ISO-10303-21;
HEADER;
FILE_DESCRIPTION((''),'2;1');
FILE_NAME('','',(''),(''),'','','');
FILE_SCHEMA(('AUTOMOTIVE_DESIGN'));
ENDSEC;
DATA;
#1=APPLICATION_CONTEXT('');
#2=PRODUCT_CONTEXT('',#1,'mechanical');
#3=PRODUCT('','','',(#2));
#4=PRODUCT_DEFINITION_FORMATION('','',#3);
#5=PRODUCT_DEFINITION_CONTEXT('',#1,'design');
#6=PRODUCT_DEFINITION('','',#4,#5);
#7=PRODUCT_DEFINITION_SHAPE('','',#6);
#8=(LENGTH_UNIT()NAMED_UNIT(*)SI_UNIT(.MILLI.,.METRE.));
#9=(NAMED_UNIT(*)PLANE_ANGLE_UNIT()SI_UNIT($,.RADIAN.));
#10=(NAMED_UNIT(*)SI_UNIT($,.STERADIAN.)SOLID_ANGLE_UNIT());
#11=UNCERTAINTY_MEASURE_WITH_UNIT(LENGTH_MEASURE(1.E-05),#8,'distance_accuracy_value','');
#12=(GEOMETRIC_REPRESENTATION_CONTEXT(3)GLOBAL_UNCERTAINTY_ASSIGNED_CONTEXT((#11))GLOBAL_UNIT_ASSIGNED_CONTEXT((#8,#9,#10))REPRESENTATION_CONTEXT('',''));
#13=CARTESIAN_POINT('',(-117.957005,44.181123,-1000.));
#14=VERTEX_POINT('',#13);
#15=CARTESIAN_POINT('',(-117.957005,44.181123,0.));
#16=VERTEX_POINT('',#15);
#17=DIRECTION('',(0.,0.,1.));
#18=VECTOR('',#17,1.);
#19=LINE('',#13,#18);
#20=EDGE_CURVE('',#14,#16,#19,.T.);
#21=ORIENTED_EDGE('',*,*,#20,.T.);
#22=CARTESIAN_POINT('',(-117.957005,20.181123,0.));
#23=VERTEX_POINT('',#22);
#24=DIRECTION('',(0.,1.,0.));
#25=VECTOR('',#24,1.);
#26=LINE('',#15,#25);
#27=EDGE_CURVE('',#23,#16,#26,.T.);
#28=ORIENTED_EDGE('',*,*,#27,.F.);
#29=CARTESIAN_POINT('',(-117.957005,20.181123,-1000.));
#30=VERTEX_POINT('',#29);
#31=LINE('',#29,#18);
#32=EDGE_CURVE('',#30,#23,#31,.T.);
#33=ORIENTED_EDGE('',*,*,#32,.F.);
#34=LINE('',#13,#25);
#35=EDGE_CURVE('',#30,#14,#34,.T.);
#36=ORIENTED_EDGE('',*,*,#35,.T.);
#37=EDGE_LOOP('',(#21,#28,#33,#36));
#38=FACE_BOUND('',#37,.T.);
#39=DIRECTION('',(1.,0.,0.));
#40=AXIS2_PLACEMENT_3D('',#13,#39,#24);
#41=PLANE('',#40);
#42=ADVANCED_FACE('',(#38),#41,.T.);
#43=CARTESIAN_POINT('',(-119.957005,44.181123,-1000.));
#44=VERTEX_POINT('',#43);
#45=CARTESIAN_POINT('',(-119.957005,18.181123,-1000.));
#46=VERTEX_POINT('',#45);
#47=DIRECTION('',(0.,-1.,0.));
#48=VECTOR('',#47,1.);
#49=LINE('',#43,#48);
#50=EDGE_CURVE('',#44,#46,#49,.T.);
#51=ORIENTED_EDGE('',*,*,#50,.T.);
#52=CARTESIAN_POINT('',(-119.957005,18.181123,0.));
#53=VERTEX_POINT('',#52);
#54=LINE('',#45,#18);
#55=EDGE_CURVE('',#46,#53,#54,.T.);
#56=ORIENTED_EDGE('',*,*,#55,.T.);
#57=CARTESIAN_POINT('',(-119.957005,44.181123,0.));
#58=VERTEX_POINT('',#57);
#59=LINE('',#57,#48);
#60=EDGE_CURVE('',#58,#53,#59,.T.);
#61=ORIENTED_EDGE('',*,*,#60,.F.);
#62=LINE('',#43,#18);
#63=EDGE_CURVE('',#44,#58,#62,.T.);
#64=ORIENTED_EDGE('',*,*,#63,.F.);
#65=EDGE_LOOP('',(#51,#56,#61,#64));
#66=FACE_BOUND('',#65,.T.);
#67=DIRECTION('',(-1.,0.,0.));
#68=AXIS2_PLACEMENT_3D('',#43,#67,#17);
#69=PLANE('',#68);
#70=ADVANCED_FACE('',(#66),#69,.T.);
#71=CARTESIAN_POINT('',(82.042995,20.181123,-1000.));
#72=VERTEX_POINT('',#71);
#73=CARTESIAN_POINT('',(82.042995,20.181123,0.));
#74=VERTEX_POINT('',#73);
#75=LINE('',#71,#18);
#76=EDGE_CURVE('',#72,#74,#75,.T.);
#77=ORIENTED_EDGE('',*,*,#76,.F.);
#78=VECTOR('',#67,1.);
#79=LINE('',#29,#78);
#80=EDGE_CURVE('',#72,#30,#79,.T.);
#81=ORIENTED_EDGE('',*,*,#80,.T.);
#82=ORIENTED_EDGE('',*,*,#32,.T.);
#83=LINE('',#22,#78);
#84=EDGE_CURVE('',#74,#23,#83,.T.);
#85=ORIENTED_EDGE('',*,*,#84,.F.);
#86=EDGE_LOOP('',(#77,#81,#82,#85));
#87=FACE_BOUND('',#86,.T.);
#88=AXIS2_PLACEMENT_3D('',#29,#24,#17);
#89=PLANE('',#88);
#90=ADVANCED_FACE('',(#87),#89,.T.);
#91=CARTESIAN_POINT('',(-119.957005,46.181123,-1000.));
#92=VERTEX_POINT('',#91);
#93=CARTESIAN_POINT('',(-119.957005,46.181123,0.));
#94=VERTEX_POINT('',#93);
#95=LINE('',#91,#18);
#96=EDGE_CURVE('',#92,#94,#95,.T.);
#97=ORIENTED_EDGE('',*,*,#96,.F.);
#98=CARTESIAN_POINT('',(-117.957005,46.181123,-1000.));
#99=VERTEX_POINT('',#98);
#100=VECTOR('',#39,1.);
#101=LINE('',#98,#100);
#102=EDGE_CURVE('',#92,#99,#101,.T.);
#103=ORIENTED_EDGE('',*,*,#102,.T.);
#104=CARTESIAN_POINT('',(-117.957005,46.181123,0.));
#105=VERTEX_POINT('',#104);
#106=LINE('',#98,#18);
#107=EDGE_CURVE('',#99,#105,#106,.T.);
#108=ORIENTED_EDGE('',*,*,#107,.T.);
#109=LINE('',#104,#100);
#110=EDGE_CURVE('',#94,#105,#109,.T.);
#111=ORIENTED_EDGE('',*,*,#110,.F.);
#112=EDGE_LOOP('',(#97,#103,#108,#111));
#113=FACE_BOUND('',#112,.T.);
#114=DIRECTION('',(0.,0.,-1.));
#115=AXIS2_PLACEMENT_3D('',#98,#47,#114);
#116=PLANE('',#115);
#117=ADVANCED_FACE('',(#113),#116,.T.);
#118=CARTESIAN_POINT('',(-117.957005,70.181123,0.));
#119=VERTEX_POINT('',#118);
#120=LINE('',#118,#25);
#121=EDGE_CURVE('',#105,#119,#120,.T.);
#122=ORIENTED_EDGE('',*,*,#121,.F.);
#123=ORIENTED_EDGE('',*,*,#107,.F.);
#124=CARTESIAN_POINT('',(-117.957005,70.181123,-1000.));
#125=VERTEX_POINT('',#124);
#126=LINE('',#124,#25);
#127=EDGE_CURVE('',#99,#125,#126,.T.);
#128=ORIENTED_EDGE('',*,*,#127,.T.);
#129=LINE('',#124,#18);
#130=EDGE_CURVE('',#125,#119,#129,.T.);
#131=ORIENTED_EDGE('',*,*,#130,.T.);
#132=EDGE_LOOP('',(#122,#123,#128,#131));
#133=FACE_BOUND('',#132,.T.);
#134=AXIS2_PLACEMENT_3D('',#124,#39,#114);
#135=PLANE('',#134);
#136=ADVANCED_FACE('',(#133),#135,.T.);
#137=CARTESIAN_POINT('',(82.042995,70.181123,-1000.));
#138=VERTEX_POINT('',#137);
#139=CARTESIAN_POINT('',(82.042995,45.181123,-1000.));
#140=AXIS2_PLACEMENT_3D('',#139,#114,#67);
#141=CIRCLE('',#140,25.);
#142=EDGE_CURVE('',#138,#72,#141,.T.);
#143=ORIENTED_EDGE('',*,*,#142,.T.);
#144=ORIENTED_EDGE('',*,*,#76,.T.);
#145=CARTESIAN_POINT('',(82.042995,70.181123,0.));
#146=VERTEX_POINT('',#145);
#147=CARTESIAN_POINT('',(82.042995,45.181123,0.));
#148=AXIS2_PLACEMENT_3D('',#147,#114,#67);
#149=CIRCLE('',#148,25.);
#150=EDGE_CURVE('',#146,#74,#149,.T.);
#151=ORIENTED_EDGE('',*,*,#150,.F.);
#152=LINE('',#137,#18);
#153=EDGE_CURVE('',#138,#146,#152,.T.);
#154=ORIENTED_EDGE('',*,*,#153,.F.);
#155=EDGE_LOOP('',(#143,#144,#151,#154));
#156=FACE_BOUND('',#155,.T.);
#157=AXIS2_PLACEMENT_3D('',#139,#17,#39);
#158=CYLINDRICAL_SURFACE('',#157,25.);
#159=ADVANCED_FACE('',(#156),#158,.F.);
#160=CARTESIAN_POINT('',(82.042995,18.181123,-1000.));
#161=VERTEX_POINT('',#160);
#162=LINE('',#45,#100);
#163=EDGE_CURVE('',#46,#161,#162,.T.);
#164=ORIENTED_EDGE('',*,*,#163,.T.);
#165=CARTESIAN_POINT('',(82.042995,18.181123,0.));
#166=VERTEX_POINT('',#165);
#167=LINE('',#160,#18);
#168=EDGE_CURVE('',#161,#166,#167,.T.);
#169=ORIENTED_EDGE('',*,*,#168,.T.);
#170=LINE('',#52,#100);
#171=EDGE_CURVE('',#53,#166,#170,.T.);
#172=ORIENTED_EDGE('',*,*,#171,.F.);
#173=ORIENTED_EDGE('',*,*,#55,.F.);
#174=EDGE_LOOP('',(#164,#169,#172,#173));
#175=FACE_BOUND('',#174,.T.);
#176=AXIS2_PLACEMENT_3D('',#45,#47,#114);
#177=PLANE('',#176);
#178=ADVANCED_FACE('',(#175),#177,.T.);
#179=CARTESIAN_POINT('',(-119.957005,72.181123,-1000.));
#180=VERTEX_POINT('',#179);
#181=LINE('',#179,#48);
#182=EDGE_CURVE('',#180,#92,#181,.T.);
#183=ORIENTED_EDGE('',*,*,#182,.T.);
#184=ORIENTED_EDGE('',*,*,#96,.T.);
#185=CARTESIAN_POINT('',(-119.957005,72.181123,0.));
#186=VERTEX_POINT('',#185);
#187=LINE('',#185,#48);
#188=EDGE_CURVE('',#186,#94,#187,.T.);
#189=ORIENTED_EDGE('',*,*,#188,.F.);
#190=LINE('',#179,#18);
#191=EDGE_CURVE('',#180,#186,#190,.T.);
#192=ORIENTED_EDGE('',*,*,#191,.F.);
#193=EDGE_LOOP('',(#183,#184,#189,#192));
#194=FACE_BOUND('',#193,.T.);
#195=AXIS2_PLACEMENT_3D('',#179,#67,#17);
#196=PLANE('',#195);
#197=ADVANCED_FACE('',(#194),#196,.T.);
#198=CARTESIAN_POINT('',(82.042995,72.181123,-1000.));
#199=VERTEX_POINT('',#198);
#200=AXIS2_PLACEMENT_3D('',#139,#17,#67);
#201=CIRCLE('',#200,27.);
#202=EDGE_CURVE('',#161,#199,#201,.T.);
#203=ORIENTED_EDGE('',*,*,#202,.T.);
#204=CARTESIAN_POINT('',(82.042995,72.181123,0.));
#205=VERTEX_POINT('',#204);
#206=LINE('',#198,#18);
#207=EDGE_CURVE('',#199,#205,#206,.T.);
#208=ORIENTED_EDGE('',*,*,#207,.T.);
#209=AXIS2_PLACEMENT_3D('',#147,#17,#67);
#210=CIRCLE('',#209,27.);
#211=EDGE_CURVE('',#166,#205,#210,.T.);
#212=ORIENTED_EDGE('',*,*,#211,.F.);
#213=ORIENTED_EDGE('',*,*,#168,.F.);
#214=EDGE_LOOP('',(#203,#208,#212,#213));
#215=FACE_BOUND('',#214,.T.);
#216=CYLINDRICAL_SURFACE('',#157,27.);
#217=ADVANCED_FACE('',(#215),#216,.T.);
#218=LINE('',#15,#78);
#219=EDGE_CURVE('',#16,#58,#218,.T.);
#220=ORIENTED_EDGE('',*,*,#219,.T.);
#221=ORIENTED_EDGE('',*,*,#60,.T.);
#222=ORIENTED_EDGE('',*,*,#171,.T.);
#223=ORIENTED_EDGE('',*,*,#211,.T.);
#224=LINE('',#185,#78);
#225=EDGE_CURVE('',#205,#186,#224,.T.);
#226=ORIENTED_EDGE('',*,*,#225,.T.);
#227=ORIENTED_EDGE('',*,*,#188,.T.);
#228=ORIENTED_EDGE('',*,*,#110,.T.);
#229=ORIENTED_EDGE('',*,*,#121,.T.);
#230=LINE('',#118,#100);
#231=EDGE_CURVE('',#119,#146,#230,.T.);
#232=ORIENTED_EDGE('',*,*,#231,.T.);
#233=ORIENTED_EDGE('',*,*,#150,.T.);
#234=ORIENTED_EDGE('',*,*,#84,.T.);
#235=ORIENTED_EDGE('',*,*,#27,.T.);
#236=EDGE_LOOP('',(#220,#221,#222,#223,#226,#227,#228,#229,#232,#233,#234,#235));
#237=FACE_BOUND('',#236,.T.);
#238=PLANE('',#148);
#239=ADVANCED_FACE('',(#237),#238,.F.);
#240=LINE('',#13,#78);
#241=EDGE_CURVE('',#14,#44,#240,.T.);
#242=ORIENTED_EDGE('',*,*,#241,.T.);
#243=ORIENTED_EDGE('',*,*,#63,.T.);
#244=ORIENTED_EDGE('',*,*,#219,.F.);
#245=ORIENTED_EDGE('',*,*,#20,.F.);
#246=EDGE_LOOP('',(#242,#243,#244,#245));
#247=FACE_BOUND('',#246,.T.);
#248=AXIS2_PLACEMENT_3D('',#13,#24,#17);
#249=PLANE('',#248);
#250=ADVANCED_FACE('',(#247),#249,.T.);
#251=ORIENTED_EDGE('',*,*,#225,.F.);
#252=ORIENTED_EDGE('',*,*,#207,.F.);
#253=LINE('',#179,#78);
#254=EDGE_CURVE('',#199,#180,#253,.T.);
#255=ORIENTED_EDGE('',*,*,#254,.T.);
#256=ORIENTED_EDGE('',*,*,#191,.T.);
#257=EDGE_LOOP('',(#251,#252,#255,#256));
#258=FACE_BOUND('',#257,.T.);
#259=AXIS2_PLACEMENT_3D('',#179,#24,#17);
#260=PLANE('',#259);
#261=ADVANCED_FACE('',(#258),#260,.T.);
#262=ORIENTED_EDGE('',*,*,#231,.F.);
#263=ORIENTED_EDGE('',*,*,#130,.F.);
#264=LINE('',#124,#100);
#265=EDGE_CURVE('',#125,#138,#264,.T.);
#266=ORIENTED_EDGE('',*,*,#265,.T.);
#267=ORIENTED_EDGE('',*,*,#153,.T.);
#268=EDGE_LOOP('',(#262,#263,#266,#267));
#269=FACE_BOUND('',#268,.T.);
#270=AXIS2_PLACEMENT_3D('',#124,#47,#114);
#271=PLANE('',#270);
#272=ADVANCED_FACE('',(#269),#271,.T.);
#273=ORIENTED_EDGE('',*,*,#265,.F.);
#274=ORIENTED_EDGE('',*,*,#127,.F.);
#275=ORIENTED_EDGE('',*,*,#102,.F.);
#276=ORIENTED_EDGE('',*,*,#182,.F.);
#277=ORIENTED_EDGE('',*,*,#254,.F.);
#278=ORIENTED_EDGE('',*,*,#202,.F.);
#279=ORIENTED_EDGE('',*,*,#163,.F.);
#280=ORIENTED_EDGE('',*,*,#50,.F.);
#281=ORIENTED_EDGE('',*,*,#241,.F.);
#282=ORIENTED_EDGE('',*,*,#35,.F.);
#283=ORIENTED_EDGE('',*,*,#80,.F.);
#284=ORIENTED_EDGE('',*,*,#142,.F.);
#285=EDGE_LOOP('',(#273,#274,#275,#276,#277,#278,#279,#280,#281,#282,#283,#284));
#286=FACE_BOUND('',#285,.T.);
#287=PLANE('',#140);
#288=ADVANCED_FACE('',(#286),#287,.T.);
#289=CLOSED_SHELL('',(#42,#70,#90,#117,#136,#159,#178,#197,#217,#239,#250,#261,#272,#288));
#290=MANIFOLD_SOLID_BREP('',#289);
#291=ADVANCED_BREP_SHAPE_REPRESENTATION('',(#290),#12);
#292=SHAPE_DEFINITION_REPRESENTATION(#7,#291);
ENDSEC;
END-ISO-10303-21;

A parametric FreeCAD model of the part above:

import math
import FreeCAD as App
import Part
import Sketcher
from FreeCAD import Vector

doc = App.newDocument("Part")
params = doc.addObject("Spreadsheet::Sheet", "Params")
for row, (alias, value) in enumerate([
    ("sketch1_radius", "25 mm"),
    ("sketch1_radius2", "27 mm"),
    ("sketch1_width", "202 mm"),
    ("sketch1_width2", "2 mm"),
    ("sketch1_height", "26 mm"),
    ("pad1_length", "1000 mm"),
], start=1):
    params.set(f"A{row}", alias)
    params.set(f"B{row}", "=" + value)
    params.setAlias(f"B{row}", alias)

body = doc.addObject("PartDesign::Body", "Body")

# Sketch on XY plane
sketch1 = body.newObject("Sketcher::SketchObject", "Sketch")
sketch1.AttachmentSupport = (doc.getObject("XY_Plane"), [""])
sketch1.MapMode = "FlatFace"
sketch1.addGeometry([
    Part.LineSegment(Vector(82.042995, 72.181123, 0), Vector(-119.957005, 72.181123, 0)),  # 0
    Part.LineSegment(Vector(-119.957005, 72.181123, 0), Vector(-119.957005, 46.181123, 0)),  # 1
    Part.LineSegment(Vector(-119.957005, 46.181123, 0), Vector(-117.957005, 46.181123, 0)),  # 2
    Part.LineSegment(Vector(-117.957005, 46.181123, 0), Vector(-117.957005, 70.181123, 0)),  # 3
    Part.LineSegment(Vector(-117.957005, 70.181123, 0), Vector(82.042995, 70.181123, 0)),  # 4
    Part.ArcOfCircle(Part.Circle(Vector(82.042995, 45.181123, 0), Vector(0, 0, 1), 25), math.radians(-90), math.radians(90)),  # 5
    Part.LineSegment(Vector(82.042995, 20.181123, 0), Vector(-117.957005, 20.181123, 0)),  # 6
    Part.LineSegment(Vector(-117.957005, 20.181123, 0), Vector(-117.957005, 44.181123, 0)),  # 7
    Part.LineSegment(Vector(-117.957005, 44.181123, 0), Vector(-119.957005, 44.181123, 0)),  # 8
    Part.LineSegment(Vector(-119.957005, 44.181123, 0), Vector(-119.957005, 18.181123, 0)),  # 9
    Part.LineSegment(Vector(-119.957005, 18.181123, 0), Vector(82.042995, 18.181123, 0)),  # 10
    Part.ArcOfCircle(Part.Circle(Vector(82.042995, 45.181123, 0), Vector(0, 0, 1), 27), math.radians(-90), math.radians(90)),  # 11
], False)
sketch1.addConstraint([
    Sketcher.Constraint("Coincident", 0, 2, 1, 1),
    Sketcher.Constraint("Coincident", 1, 2, 2, 1),
    Sketcher.Constraint("Coincident", 2, 2, 3, 1),
    Sketcher.Constraint("Coincident", 3, 2, 4, 1),
    Sketcher.Constraint("Tangent", 4, 2, 5, 2),
    Sketcher.Constraint("Tangent", 5, 1, 6, 1),
    Sketcher.Constraint("Coincident", 6, 2, 7, 1),
    Sketcher.Constraint("Coincident", 7, 2, 8, 1),
    Sketcher.Constraint("Coincident", 8, 2, 9, 1),
    Sketcher.Constraint("Coincident", 9, 2, 10, 1),
    Sketcher.Constraint("Tangent", 10, 2, 11, 1),
    Sketcher.Constraint("Tangent", 11, 2, 0, 1),
    Sketcher.Constraint("Horizontal", 0),
    Sketcher.Constraint("Vertical", 1),
    Sketcher.Constraint("Horizontal", 2),
    Sketcher.Constraint("Vertical", 3),
    Sketcher.Constraint("Horizontal", 4),
    Sketcher.Constraint("Horizontal", 6),
    Sketcher.Constraint("Vertical", 7),
    Sketcher.Constraint("Horizontal", 8),
    Sketcher.Constraint("Vertical", 9),
    Sketcher.Constraint("Horizontal", 10),
    Sketcher.Constraint("Coincident", 11, 3, 5, 3),
    Sketcher.Constraint("Vertical", 3, 2, 6, 2),
    Sketcher.Constraint("Vertical", 1, 2, 8, 2),
    Sketcher.Constraint("Equal", 3, 7),
    Sketcher.Constraint("Radius", 5, 25.0),
    Sketcher.Constraint("Radius", 11, 27.0),
    Sketcher.Constraint("DistanceX", 0, 2, 0, 1, 202.0),
    Sketcher.Constraint("DistanceX", 2, 1, 2, 2, 2.0),
    Sketcher.Constraint("DistanceY", 1, 2, 1, 1, 26.0),
    Sketcher.Constraint("DistanceX", -1, 1, 5, 3, 82.042995),
    Sketcher.Constraint("DistanceY", -1, 1, 5, 3, 45.181123),
])
sketch1.setExpression("Constraints[26]", "Params.sketch1_radius")
sketch1.setExpression("Constraints[27]", "Params.sketch1_radius2")
sketch1.setExpression("Constraints[28]", "Params.sketch1_width")
sketch1.setExpression("Constraints[29]", "Params.sketch1_width2")
sketch1.setExpression("Constraints[30]", "Params.sketch1_height")
pad1 = body.newObject("PartDesign::Pad", "Pad")
pad1.Profile = sketch1
pad1.setExpression("Length", "Params.pad1_length")
pad1.Reversed = True

doc.recompute()
